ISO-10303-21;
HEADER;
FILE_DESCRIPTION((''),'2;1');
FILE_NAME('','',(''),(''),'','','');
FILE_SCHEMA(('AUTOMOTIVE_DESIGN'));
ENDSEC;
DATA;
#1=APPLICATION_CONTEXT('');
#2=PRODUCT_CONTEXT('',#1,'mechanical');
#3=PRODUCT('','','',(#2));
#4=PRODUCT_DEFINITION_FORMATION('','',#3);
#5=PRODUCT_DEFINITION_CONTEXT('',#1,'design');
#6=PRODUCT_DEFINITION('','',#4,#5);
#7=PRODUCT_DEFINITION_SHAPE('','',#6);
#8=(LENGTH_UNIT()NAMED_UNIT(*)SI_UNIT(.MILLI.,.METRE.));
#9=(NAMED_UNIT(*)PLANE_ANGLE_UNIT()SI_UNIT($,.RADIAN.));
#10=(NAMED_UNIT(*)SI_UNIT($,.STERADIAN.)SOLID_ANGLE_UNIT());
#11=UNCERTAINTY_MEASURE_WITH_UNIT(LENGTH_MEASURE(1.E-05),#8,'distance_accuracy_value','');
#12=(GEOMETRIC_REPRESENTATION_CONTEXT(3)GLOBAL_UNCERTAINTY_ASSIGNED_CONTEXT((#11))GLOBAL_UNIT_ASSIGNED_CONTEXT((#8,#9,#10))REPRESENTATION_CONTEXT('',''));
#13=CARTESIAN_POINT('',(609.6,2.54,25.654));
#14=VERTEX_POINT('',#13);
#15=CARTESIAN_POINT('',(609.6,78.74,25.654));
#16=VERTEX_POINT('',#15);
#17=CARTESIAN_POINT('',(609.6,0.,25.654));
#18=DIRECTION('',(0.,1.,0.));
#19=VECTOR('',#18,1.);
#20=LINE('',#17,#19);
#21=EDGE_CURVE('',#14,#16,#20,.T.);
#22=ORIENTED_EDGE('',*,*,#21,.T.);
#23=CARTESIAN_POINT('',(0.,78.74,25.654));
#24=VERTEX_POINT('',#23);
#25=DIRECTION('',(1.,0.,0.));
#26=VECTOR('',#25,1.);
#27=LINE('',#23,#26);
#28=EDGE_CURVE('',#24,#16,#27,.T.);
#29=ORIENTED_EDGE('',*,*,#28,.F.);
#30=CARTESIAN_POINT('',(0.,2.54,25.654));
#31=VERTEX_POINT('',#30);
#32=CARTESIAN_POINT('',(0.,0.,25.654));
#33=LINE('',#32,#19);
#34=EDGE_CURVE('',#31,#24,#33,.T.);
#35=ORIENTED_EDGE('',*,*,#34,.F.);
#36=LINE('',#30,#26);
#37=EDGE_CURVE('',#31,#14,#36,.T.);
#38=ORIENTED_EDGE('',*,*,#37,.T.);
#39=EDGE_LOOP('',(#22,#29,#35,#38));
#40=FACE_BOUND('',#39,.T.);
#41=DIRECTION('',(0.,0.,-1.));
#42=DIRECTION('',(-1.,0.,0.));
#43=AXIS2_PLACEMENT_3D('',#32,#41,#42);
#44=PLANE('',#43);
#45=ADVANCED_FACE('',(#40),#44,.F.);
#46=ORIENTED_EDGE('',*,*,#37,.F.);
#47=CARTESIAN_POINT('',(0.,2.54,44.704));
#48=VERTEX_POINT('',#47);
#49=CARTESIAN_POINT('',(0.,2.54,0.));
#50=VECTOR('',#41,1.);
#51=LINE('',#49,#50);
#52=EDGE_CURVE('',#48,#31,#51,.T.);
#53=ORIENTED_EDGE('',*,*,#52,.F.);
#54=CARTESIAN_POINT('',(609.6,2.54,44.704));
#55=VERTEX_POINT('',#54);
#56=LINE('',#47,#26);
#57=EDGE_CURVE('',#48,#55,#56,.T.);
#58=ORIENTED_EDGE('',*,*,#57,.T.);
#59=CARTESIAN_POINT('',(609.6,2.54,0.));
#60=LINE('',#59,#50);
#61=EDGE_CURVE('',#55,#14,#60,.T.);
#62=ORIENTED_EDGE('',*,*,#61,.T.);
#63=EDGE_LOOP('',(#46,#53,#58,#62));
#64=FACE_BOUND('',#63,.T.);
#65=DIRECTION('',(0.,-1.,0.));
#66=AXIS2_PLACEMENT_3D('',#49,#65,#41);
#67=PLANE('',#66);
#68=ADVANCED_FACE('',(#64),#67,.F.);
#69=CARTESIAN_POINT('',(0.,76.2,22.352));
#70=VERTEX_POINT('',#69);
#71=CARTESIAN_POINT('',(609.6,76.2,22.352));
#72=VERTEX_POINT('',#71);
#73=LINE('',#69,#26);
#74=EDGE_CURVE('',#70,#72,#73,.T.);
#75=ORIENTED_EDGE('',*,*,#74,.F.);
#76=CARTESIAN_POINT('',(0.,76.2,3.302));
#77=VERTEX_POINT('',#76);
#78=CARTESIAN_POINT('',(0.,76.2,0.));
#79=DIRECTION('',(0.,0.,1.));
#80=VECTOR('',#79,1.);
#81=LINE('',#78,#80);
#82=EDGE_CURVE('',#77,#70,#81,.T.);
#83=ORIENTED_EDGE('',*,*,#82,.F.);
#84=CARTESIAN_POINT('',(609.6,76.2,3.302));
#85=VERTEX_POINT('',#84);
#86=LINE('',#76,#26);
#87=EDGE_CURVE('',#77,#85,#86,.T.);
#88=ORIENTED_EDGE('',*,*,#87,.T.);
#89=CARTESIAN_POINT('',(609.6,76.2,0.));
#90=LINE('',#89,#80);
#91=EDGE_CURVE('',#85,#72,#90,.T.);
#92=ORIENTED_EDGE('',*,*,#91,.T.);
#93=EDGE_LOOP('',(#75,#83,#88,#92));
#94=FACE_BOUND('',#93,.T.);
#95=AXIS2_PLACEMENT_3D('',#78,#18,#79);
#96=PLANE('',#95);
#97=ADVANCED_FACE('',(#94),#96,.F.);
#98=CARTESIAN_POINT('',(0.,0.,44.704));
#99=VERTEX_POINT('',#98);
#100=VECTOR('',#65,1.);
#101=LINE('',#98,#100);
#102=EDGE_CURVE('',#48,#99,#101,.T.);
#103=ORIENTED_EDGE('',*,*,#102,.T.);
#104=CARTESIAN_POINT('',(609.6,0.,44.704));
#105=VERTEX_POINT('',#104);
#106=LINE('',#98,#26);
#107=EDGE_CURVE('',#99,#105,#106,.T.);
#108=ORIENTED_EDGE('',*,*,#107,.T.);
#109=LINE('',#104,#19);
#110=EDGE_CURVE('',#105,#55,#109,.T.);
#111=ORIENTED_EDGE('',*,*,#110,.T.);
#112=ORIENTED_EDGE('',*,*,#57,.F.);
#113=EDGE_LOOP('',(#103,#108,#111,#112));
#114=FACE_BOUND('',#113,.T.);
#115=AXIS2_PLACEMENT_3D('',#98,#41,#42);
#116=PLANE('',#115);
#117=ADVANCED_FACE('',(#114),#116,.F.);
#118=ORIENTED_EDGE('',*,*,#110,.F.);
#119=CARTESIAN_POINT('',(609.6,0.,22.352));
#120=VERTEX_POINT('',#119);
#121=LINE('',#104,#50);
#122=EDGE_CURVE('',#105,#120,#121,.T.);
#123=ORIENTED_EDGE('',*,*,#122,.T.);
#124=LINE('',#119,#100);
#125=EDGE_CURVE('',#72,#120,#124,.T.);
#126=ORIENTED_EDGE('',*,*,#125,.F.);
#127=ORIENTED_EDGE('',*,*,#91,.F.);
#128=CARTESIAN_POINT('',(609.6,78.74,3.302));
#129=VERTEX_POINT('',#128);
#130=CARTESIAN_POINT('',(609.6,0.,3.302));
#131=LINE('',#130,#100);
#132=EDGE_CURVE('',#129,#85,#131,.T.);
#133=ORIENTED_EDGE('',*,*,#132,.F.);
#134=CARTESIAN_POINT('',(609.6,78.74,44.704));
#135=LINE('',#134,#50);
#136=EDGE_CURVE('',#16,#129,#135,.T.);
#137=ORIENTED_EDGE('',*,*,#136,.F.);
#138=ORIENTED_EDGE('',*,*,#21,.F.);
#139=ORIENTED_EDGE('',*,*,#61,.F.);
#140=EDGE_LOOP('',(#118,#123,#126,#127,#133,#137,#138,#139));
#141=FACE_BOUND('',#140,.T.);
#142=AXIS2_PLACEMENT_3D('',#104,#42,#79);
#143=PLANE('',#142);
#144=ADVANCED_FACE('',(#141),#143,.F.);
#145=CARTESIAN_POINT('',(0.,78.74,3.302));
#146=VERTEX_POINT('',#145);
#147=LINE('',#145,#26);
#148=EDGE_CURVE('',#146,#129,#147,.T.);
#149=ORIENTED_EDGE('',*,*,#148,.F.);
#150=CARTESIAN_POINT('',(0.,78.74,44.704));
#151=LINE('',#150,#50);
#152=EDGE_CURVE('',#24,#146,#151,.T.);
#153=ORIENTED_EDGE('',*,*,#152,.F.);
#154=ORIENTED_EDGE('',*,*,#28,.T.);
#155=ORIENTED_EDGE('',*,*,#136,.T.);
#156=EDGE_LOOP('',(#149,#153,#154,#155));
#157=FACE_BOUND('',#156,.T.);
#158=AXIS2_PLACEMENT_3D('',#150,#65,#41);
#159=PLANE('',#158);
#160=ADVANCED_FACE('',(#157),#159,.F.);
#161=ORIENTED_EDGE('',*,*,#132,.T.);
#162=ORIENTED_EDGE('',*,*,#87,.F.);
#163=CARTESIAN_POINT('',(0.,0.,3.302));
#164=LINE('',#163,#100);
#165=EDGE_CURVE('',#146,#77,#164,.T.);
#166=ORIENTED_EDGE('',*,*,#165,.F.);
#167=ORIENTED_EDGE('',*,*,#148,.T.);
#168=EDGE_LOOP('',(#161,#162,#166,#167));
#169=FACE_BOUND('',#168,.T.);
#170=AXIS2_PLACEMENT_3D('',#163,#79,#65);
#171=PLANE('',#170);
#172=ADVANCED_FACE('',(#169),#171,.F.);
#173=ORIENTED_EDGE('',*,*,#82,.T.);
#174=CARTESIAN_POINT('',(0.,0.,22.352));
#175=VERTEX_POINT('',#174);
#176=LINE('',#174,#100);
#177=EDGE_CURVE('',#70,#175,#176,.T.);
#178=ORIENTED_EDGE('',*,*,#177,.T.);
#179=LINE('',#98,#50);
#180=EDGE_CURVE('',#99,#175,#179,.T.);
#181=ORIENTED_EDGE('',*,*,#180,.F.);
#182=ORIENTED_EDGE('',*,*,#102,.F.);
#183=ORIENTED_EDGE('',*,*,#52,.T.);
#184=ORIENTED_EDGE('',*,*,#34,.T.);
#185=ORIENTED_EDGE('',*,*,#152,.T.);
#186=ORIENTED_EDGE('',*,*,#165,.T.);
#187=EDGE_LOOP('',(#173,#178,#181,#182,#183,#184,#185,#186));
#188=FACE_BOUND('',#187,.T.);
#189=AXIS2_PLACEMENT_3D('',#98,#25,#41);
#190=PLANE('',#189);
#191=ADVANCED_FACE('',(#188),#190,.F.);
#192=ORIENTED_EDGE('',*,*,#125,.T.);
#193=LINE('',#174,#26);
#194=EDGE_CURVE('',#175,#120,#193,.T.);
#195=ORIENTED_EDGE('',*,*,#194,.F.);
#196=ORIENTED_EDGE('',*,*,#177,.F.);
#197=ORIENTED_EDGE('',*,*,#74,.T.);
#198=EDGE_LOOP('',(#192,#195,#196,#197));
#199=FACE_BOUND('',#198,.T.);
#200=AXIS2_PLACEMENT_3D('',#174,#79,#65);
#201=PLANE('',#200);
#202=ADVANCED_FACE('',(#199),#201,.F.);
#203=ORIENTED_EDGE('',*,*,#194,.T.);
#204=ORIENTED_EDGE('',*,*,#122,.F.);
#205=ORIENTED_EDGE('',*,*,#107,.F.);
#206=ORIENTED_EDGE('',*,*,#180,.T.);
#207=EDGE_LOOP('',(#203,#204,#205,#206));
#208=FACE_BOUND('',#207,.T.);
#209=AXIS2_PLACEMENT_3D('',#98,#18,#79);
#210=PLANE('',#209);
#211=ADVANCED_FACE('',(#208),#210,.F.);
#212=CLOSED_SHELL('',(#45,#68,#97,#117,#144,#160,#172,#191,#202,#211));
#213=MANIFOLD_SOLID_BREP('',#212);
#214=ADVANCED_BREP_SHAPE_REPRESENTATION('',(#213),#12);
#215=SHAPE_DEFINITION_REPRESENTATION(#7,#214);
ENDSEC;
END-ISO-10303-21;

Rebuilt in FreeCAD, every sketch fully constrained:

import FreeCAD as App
import Part
import Sketcher
from FreeCAD import Vector
Q = App.Units.Quantity

doc = App.newDocument("Part")
body = doc.addObject("PartDesign::Body", "Body")

# Sketch on XY plane
sketch1 = doc.addObject("Sketcher::SketchObject", "Sketch")
body.addObject(sketch1)
sketch1.AttachmentSupport = (doc.XY_Plane, [""])
sketch1.MapMode = "FlatFace"
sketch1.addGeometry([
    Part.LineSegment(Vector(0, 78.74, 0), Vector(0, 0, 0)),
    Part.LineSegment(Vector(0, 0, 0), Vector(609.6, 0, 0)),
    Part.LineSegment(Vector(609.6, 0, 0), Vector(609.6, 78.74, 0)),
    Part.LineSegment(Vector(609.6, 78.74, 0), Vector(0, 78.74, 0)),
], False)
sketch1.addConstraint([
    Sketcher.Constraint("Coincident", 0, 2, 1, 1),
    Sketcher.Constraint("Coincident", 1, 2, 2, 1),
    Sketcher.Constraint("Coincident", 2, 2, 3, 1),
    Sketcher.Constraint("Coincident", 3, 2, 0, 1),
    Sketcher.Constraint("Vertical", 0),
    Sketcher.Constraint("Horizontal", 1),
    Sketcher.Constraint("Vertical", 2),
    Sketcher.Constraint("Horizontal", 3),
    Sketcher.Constraint("Coincident", 0, 2, -1, 1),
    Sketcher.Constraint("DistanceX", 1, 1, 1, 2, Q("24 in")),
    Sketcher.Constraint("DistanceY", 0, 2, 0, 1, Q("3.1 in")),
])
pad1 = doc.addObject("PartDesign::Pad", "Pad")
body.addObject(pad1)
pad1.Profile = sketch1
pad1.Length = Q("1.76 in")

# Sketch on YZ plane
sketch2 = doc.addObject("Sketcher::SketchObject", "Sketch001")
body.addObject(sketch2)
sketch2.AttachmentSupport = (doc.YZ_Plane, [""])
sketch2.MapMode = "FlatFace"
sketch2.AttachmentOffset = App.Placement(Vector(0, 0, 24 * 25.4), App.Rotation())
sketch2.addGeometry([
    Part.LineSegment(Vector(78.74, 44.704, 0), Vector(2.54, 44.704, 0)),  # 0
    Part.LineSegment(Vector(2.54, 44.704, 0), Vector(2.54, 25.654, 0)),  # 1
    Part.LineSegment(Vector(2.54, 25.654, 0), Vector(78.74, 25.654, 0)),  # 2
    Part.LineSegment(Vector(78.74, 25.654, 0), Vector(78.74, 44.704, 0)),  # 3
    Part.LineSegment(Vector(78.74, 0, 0), Vector(78.74, 3.302, 0)),  # 4
    Part.LineSegment(Vector(78.74, 3.302, 0), Vector(76.2, 3.302, 0)),  # 5
    Part.LineSegment(Vector(76.2, 3.302, 0), Vector(76.2, 22.352, 0)),  # 6
    Part.LineSegment(Vector(76.2, 22.352, 0), Vector(0, 22.352, 0)),  # 7
    Part.LineSegment(Vector(0, 22.352, 0), Vector(0, 0, 0)),  # 8
    Part.LineSegment(Vector(0, 0, 0), Vector(78.74, 0, 0)),  # 9
], False)
sketch2.addConstraint([
    Sketcher.Constraint("Coincident", 0, 2, 1, 1),
    Sketcher.Constraint("Coincident", 1, 2, 2, 1),
    Sketcher.Constraint("Coincident", 2, 2, 3, 1),
    Sketcher.Constraint("Coincident", 3, 2, 0, 1),
    Sketcher.Constraint("Coincident", 4, 2, 5, 1),
    Sketcher.Constraint("Coincident", 5, 2, 6, 1),
    Sketcher.Constraint("Coincident", 6, 2, 7, 1),
    Sketcher.Constraint("Coincident", 7, 2, 8, 1),
    Sketcher.Constraint("Coincident", 8, 2, 9, 1),
    Sketcher.Constraint("Coincident", 9, 2, 4, 1),
    Sketcher.Constraint("Horizontal", 0),
    Sketcher.Constraint("Vertical", 1),
    Sketcher.Constraint("Horizontal", 2),
    Sketcher.Constraint("Vertical", 3),
    Sketcher.Constraint("Vertical", 4),
    Sketcher.Constraint("Horizontal", 5),
    Sketcher.Constraint("Vertical", 6),
    Sketcher.Constraint("Horizontal", 7),
    Sketcher.Constraint("Vertical", 8),
    Sketcher.Constraint("Horizontal", 9),
    Sketcher.Constraint("Coincident", 8, 2, -1, 1),
    Sketcher.Constraint("Vertical", 3, 2, 4, 2),
    Sketcher.Constraint("Equal", 2, 7),
    Sketcher.Constraint("Equal", 3, 6),
    Sketcher.Constraint("DistanceX", 0, 2, 0, 1, Q("3 in")),
    Sketcher.Constraint("DistanceX", 5, 2, 5, 1, Q("0.1 in")),
    Sketcher.Constraint("DistanceY", 1, 2, 1, 1, Q("0.75 in")),
    Sketcher.Constraint("DistanceY", 4, 1, 4, 2, Q("0.13 in")),
    Sketcher.Constraint("DistanceY", -1, 1, 0, 2, Q("1.76 in")),
])
pocket1 = doc.addObject("PartDesign::Pocket", "Pocket")
body.addObject(pocket1)
pocket1.Profile = sketch2
pocket1.Type = "ThroughAll"

doc.recompute()
